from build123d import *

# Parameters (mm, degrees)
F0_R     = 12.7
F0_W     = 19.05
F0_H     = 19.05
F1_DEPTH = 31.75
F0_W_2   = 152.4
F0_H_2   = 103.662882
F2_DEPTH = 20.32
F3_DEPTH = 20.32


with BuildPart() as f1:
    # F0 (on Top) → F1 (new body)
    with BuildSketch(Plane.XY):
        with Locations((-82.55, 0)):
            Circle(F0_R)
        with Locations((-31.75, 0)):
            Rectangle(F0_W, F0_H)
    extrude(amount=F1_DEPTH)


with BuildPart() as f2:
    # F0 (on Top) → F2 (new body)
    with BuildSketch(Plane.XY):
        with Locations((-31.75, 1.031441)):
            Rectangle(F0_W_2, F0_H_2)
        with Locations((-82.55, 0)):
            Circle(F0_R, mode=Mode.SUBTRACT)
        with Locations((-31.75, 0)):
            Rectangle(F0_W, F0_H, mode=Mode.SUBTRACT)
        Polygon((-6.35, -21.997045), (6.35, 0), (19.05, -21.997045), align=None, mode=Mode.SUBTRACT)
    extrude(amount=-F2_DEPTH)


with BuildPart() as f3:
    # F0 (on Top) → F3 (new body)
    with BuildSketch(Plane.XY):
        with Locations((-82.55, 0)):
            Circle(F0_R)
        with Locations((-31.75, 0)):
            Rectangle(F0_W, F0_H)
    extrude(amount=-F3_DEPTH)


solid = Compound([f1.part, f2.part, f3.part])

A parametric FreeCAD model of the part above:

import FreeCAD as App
import Part
import Sketcher
from FreeCAD import Vector
Q = App.Units.Quantity


def add_polygon(sketch, points):
    """Adds a closed chain of lines whose ends are joined by coincident constraints."""
    first, n = sketch.GeometryCount, len(points)
    for a, b in zip(points, points[1:] + points[:1]):
        sketch.addGeometry(Part.LineSegment(App.Vector(*a, 0), App.Vector(*b, 0)), False)
    for i in range(n):
        sketch.addConstraint(Sketcher.Constraint("Coincident", first + i, 2, first + (i + 1) % n, 1))

doc = App.newDocument("Part")
body = doc.addObject("PartDesign::Body", "Body")
body.AllowCompound = True

sketch1 = body.newObject("Sketcher::SketchObject", "Sketch")
sketch1.AttachmentSupport = (doc.getObject("XY_Plane"), [""])
sketch1.MapMode = "FlatFace"
sketch1.addGeometry(Part.Circle(Vector(-82.55, 0, 0), Vector(0, 0, 1), 12.7), False)
add_polygon(sketch1, [(-41.275, 9.525), (-41.275, -9.525), (-22.225, -9.525), (-22.225, 9.525)])
sketch1.addConstraint(Sketcher.Constraint("Vertical", 1))
sketch1.addConstraint(Sketcher.Constraint("Horizontal", 2))
sketch1.addConstraint(Sketcher.Constraint("Vertical", 3))
sketch1.addConstraint(Sketcher.Constraint("Horizontal", 4))
sketch1.addConstraint(Sketcher.Constraint("PointOnObject", 0, 3, -1))
sketch1.addConstraint(Sketcher.Constraint("Equal", 4, 1))
sketch1.addConstraint(Sketcher.Constraint("Diameter", 0, Q("1 in")))
sketch1.addConstraint(Sketcher.Constraint("DistanceX", 2, 1, 2, 2, Q("0.75 in")))
sketch1.addConstraint(Sketcher.Constraint("DistanceX", 0, 3, -1, 1, Q("3.25 in")))
sketch1.addConstraint(Sketcher.Constraint("DistanceX", 1, 2, -1, 1, Q("1.625 in")))
sketch1.addConstraint(Sketcher.Constraint("DistanceY", 1, 2, -1, 1, Q("0.375 in")))
pad1 = body.newObject("PartDesign::Pad", "Pad")
pad1.Profile = sketch1
pad1.Length = Q("1.25 in")
body2 = doc.addObject("PartDesign::Body", "Body001")

sketch2 = body2.newObject("Sketcher::SketchObject", "Sketch001")
sketch2.AttachmentSupport = (doc.getObject("XY_Plane001"), [""])
sketch2.MapMode = "FlatFace"
add_polygon(sketch2, [(-107.95, 52.862882), (-107.95, -50.8), (44.45, -50.8), (44.45, 52.862882)])
add_polygon(sketch2, [(19.05, -21.997045), (-6.35, -21.997045), (6.35, 0)])
sketch2.addGeometry(Part.Circle(Vector(-82.55, 0, 0), Vector(0, 0, 1), 12.7), False)
add_polygon(sketch2, [(-22.225, -9.525), (-41.275, -9.525), (-41.275, 9.525), (-22.225, 9.525)])
sketch2.addConstraint(Sketcher.Constraint("Vertical", 0))
sketch2.addConstraint(Sketcher.Constraint("Horizontal", 1))
sketch2.addConstraint(Sketcher.Constraint("Vertical", 2))
sketch2.addConstraint(Sketcher.Constraint("Horizontal", 3))
sketch2.addConstraint(Sketcher.Constraint("Horizontal", 4))
sketch2.addConstraint(Sketcher.Constraint("Horizontal", 8))
sketch2.addConstraint(Sketcher.Constraint("Vertical", 9))
sketch2.addConstraint(Sketcher.Constraint("Horizontal", 10))
sketch2.addConstraint(Sketcher.Constraint("Vertical", 11))
sketch2.addConstraint(Sketcher.Constraint("PointOnObject", 7, 3, -1))
sketch2.addConstraint(Sketcher.Constraint("PointOnObject", 5, 2, -1))
sketch2.addConstraint(Sketcher.Constraint("Equal", 10, 9))
sketch2.addConstraint(Sketcher.Constraint("Equal", 5, 6))
sketch2.addConstraint(Sketcher.Constraint("Diameter", 7, Q("1 in")))
sketch2.addConstraint(Sketcher.Constraint("DistanceX", 1, 1, 1, 2, Q("6 in")))
sketch2.addConstraint(Sketcher.Constraint("DistanceX", 4, 2, 4, 1, Q("1 in")))
sketch2.addConstraint(Sketcher.Constraint("Distance", 5, Q("1 in")))
sketch2.addConstraint(Sketcher.Constraint("DistanceY", 0, 2, -1, 1, Q("2 in")))
sketch2.addConstraint(Sketcher.Constraint("DistanceX", 0, 2, 7, 3, Q("1 in")))
sketch2.addConstraint(Sketcher.Constraint("DistanceX", 4, 2, 1, 2, Q("2 in")))
sketch2.addConstraint(Sketcher.Constraint("DistanceX", 8, 2, 8, 1, Q("0.75 in")))
sketch2.addConstraint(Sketcher.Constraint("DistanceX", 7, 3, -1, 1, Q("3.25 in")))
sketch2.addConstraint(Sketcher.Constraint("DistanceX", 8, 2, -1, 1, Q("1.625 in")))
sketch2.addConstraint(Sketcher.Constraint("DistanceY", 8, 2, -1, 1, Q("0.375 in")))
sketch2.addConstraint(Sketcher.Constraint("DistanceY", 0, 2, 0, 1, 103.662882))
pad2 = body2.newObject("PartDesign::Pad", "Pad001")
pad2.Profile = sketch2
pad2.Length = Q("0.8 in")
pad2.Reversed = True
body3 = doc.addObject("PartDesign::Body", "Body002")
body3.AllowCompound = True

sketch3 = body3.newObject("Sketcher::SketchObject", "Sketch002")
sketch3.AttachmentSupport = (doc.getObject("XY_Plane002"), [""])
sketch3.MapMode = "FlatFace"
sketch3.addGeometry(Part.Circle(Vector(-82.55, 0, 0), Vector(0, 0, 1), 12.7), False)
add_polygon(sketch3, [(-41.275, 9.525), (-41.275, -9.525), (-22.225, -9.525), (-22.225, 9.525)])
sketch3.addConstraint(Sketcher.Constraint("Vertical", 1))
sketch3.addConstraint(Sketcher.Constraint("Horizontal", 2))
sketch3.addConstraint(Sketcher.Constraint("Vertical", 3))
sketch3.addConstraint(Sketcher.Constraint("Horizontal", 4))
sketch3.addConstraint(Sketcher.Constraint("PointOnObject", 0, 3, -1))
sketch3.addConstraint(Sketcher.Constraint("Equal", 4, 1))
sketch3.addConstraint(Sketcher.Constraint("Diameter", 0, Q("1 in")))
sketch3.addConstraint(Sketcher.Constraint("DistanceX", 2, 1, 2, 2, Q("0.75 in")))
sketch3.addConstraint(Sketcher.Constraint("DistanceX", 0, 3, -1, 1, Q("3.25 in")))
sketch3.addConstraint(Sketcher.Constraint("DistanceX", 1, 2, -1, 1, Q("1.625 in")))
sketch3.addConstraint(Sketcher.Constraint("DistanceY", 1, 2, -1, 1, Q("0.375 in")))
pad3 = body3.newObject("PartDesign::Pad", "Pad002")
pad3.Profile = sketch3
pad3.Length = Q("0.8 in")
pad3.Reversed = True

doc.recompute()
